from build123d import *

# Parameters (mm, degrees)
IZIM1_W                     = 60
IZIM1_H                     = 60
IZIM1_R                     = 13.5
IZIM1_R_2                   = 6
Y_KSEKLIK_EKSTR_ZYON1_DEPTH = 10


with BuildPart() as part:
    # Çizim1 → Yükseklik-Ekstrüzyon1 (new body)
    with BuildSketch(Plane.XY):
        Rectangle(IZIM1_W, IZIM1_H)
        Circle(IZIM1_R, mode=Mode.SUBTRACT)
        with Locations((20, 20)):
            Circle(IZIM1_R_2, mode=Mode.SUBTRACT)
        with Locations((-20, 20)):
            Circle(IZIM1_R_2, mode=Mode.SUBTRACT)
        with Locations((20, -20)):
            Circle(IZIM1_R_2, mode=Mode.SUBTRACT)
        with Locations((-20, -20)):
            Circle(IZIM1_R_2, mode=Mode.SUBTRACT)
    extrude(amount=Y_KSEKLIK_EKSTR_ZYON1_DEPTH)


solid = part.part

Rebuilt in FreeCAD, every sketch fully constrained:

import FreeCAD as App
import Part
import Sketcher
from FreeCAD import Vector


def add_polygon(sketch, points):
    """Adds a closed chain of lines whose ends are joined by coincident constraints."""
    first, n = sketch.GeometryCount, len(points)
    for a, b in zip(points, points[1:] + points[:1]):
        sketch.addGeometry(Part.LineSegment(App.Vector(*a, 0), App.Vector(*b, 0)), False)
    for i in range(n):
        sketch.addConstraint(Sketcher.Constraint("Coincident", first + i, 2, first + (i + 1) % n, 1))

doc = App.newDocument("Part")
params = doc.addObject("Spreadsheet::Sheet", "Params")
for row, (alias, value) in enumerate([
    ("sketch1_diameter", "12 mm"),
    ("sketch1_diameter2", "27 mm"),
    ("sketch1_width", "60 mm"),
    ("pad1_length", "10 mm"),
], start=1):
    params.set(f"A{row}", alias)
    params.set(f"B{row}", "=" + value)
    params.setAlias(f"B{row}", alias)

body = doc.addObject("PartDesign::Body", "Body")

sketch1 = doc.addObject("Sketcher::SketchObject", "Sketch")
body.addObject(sketch1)
sketch1.AttachmentSupport = (doc.XY_Plane, [""])
sketch1.MapMode = "FlatFace"
add_polygon(sketch1, [(-30, 30), (-30, -30), (30, -30), (30, 30)])
sketch1.addGeometry(Part.Circle(Vector(-20, -20, 0), Vector(0, 0, 1), 6), False)
sketch1.addGeometry(Part.Circle(Vector(20, -20, 0), Vector(0, 0, 1), 6), False)
sketch1.addGeometry(Part.Circle(Vector(-20, 20, 0), Vector(0, 0, 1), 6), False)
sketch1.addGeometry(Part.Circle(Vector(0, 0, 0), Vector(0, 0, 1), 13.5), False)
sketch1.addGeometry(Part.Circle(Vector(20, 20, 0), Vector(0, 0, 1), 6), False)
sketch1.addConstraint([
    Sketcher.Constraint("Vertical", 0),
    Sketcher.Constraint("Horizontal", 1),
    Sketcher.Constraint("Vertical", 2),
    Sketcher.Constraint("Horizontal", 3),
    Sketcher.Constraint("Coincident", 7, 3, -1, 1),
    Sketcher.Constraint("Equal", 4, 5),
    Sketcher.Constraint("Equal", 5, 6),
    Sketcher.Constraint("Equal", 6, 8),
    Sketcher.Constraint("Symmetric", 5, 3, 6, 3, -1, 1),
    Sketcher.Constraint("Symmetric", 4, 3, 8, 3, -1, 1),
    Sketcher.Constraint("Symmetric", 0, 2, 2, 2, -1, 1),
    Sketcher.Constraint("Symmetric", 4, 3, 5, 3, -2),
    Sketcher.Constraint("Equal", 3, 0),
    Sketcher.Constraint("Diameter", 4, 12.0),
    Sketcher.Constraint("Diameter", 7, 27.0),
    Sketcher.Constraint("DistanceX", 1, 1, 1, 2, 60.0),
    Sketcher.Constraint("DistanceX", 4, 3, -1, 1, 20.0),
    Sketcher.Constraint("DistanceY", 4, 3, -1, 1, 20.0),
])
sketch1.setExpression("Constraints[17]", "Params.sketch1_diameter")
sketch1.setExpression("Constraints[18]", "Params.sketch1_diameter2")
sketch1.setExpression("Constraints[19]", "Params.sketch1_width")
pad1 = doc.addObject("PartDesign::Pad", "Pad")
body.addObject(pad1)
pad1.Profile = sketch1
pad1.setExpression("Length", "Params.pad1_length")

doc.recompute()
